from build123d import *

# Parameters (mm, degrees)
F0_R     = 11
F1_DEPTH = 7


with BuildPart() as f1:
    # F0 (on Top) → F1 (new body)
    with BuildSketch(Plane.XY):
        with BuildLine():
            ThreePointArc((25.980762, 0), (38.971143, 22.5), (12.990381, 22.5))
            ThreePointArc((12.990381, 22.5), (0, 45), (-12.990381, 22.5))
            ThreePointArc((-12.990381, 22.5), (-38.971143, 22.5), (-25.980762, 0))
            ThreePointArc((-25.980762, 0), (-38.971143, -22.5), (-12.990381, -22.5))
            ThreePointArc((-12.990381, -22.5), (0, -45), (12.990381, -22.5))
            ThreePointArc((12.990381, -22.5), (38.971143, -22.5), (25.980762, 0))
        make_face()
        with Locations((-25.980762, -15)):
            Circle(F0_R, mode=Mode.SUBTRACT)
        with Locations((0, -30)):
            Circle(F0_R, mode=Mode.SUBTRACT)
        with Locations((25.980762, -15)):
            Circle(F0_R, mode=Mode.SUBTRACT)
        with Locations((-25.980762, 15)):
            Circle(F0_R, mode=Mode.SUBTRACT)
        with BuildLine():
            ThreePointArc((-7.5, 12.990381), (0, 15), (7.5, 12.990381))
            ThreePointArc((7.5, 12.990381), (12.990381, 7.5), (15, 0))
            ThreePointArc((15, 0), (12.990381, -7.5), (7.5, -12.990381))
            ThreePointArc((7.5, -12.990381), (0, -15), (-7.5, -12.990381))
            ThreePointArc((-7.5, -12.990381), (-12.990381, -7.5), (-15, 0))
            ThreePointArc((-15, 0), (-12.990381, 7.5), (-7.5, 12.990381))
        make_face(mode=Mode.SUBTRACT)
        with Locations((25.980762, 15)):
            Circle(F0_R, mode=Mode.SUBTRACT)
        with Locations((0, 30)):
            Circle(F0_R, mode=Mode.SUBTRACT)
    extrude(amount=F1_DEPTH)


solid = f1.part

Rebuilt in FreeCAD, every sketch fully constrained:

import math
import FreeCAD as App
import Part
import Sketcher

doc = App.newDocument("Part")
params = doc.addObject("Spreadsheet::Sheet", "Params")
for row, (alias, value) in enumerate([
    ("sketch1_diameter", "22 mm"),
    ("sketch1_radius", "15 mm"),
    ("pad1_length", "7 mm"),
], start=1):
    params.set(f"A{row}", alias)
    params.set(f"B{row}", "=" + value)
    params.setAlias(f"B{row}", alias)

body = doc.addObject("PartDesign::Body", "Body")

sketch1 = body.newObject("Sketcher::SketchObject", "Sketch")
sketch1.AttachmentSupport = (doc.getObject("XY_Plane"), [""])
sketch1.MapMode = "FlatFace"
sketch1.addGeometry([
    Part.ArcOfCircle(Part.Circle(App.Vector(26, 15, 0), App.Vector(0, 0, 1), 15), math.radians(-90), math.radians(150)),
    Part.ArcOfCircle(Part.Circle(App.Vector(0, 30, 0), App.Vector(0, 0, 1), 15), math.radians(-30), math.radians(210)),
    Part.ArcOfCircle(Part.Circle(App.Vector(-26, 15, 0), App.Vector(0, 0, 1), 15), math.radians(30), math.radians(270)),
    Part.ArcOfCircle(Part.Circle(App.Vector(-26, -15, 0), App.Vector(0, 0, 1), 15), math.radians(90), math.radians(330)),
    Part.ArcOfCircle(Part.Circle(App.Vector(0, -30, 0), App.Vector(0, 0, 1), 15), math.radians(150), math.radians(390)),
    Part.ArcOfCircle(Part.Circle(App.Vector(26, -15, 0), App.Vector(0, 0, 1), 15), math.radians(-150), math.radians(90)),
    Part.Circle(App.Vector(-26, -15, 0), App.Vector(0, 0, 1), 11),
    Part.Circle(App.Vector(0, -30, 0), App.Vector(0, 0, 1), 11),
    Part.Circle(App.Vector(26, -15, 0), App.Vector(0, 0, 1), 11),
    Part.Circle(App.Vector(-26, 15, 0), App.Vector(0, 0, 1), 11),
    Part.ArcOfCircle(Part.Circle(App.Vector(0, 0, 0), App.Vector(0, 0, 1), 15), math.radians(120), math.radians(180)),
    Part.ArcOfCircle(Part.Circle(App.Vector(0, 0, 0), App.Vector(0, 0, 1), 15), math.radians(60), math.radians(120)),
    Part.ArcOfCircle(Part.Circle(App.Vector(0, 0, 0), App.Vector(0, 0, 1), 15), math.radians(0), math.radians(60)),
    Part.ArcOfCircle(Part.Circle(App.Vector(0, 0, 0), App.Vector(0, 0, 1), 15), math.radians(-60), math.radians(0)),
    Part.ArcOfCircle(Part.Circle(App.Vector(0, 0, 0), App.Vector(0, 0, 1), 15), math.radians(-120), math.radians(-60)),
    Part.ArcOfCircle(Part.Circle(App.Vector(0, 0, 0), App.Vector(0, 0, 1), 15), math.radians(-180), math.radians(-120)),
    Part.Circle(App.Vector(26, 15, 0), App.Vector(0, 0, 1), 11),
    Part.Circle(App.Vector(0, 30, 0), App.Vector(0, 0, 1), 11),
], False)
sketch1.addConstraint([
    Sketcher.Constraint("Tangent", 0, 2, 1, 1),
    Sketcher.Constraint("Tangent", 1, 2, 2, 1),
    Sketcher.Constraint("Tangent", 2, 2, 3, 1),
    Sketcher.Constraint("Tangent", 3, 2, 4, 1),
    Sketcher.Constraint("Tangent", 4, 2, 5, 1),
    Sketcher.Constraint("Tangent", 5, 2, 0, 1),
    Sketcher.Constraint("Tangent", 10, 1, 11, 2),
    Sketcher.Constraint("Tangent", 11, 1, 12, 2),
    Sketcher.Constraint("Tangent", 12, 1, 13, 2),
    Sketcher.Constraint("Tangent", 13, 1, 14, 2),
    Sketcher.Constraint("Tangent", 14, 1, 15, 2),
    Sketcher.Constraint("Tangent", 15, 1, 10, 2),
    Sketcher.Constraint("Coincident", 10, 3, -1, 1),
    Sketcher.Constraint("Coincident", 12, 3, -1, 1),
    Sketcher.Constraint("Coincident", 6, 3, 3, 3),
    Sketcher.Constraint("Coincident", 7, 3, 4, 3),
    Sketcher.Constraint("Coincident", 8, 3, 5, 3),
    Sketcher.Constraint("Coincident", 9, 3, 2, 3),
    Sketcher.Constraint("Coincident", 16, 3, 0, 3),
    Sketcher.Constraint("Coincident", 17, 3, 1, 3),
    Sketcher.Constraint("Equal", 0, 1),
    Sketcher.Constraint("Equal", 1, 2),
    Sketcher.Constraint("Equal", 2, 3),
    Sketcher.Constraint("Equal", 3, 4),
    Sketcher.Constraint("Equal", 4, 5),
    Sketcher.Constraint("Equal", 6, 7),
    Sketcher.Constraint("Equal", 7, 8),
    Sketcher.Constraint("Equal", 8, 9),
    Sketcher.Constraint("Equal", 5, 10),
    Sketcher.Constraint("Equal", 12, 13),
    Sketcher.Constraint("Equal", 9, 16),
    Sketcher.Constraint("Equal", 16, 17),
    Sketcher.Constraint("Symmetric", 0, 3, 3, 3, -1, 1),
    Sketcher.Constraint("Symmetric", 0, 3, 2, 3, -2),
    Sketcher.Constraint("PointOnObject", 4, 3, -2),
    Sketcher.Constraint("PointOnObject", 12, 1, -1),
    Sketcher.Constraint("PointOnObject", 15, 1, -1),
    Sketcher.Constraint("Horizontal", 10, 1, 11, 1),
    Sketcher.Constraint("Horizontal", 13, 1, 14, 1),
    Sketcher.Constraint("Vertical", 11, 1, 13, 1),
    Sketcher.Constraint("Diameter", 6, 22.0),
    Sketcher.Constraint("Radius", 0, 15.0),
    Sketcher.Constraint("DistanceY", -1, 1, 1, 3, 30.0),
    Sketcher.Constraint("DistanceX", 10, 1, -1, 1, 7.5),
])
sketch1.setExpression("Constraints[40]", "Params.sketch1_diameter")
sketch1.setExpression("Constraints[41]", "Params.sketch1_radius")
pad1 = body.newObject("PartDesign::Pad", "Pad")
pad1.Profile = sketch1
pad1.setExpression("Length", "Params.pad1_length")

doc.recompute()
